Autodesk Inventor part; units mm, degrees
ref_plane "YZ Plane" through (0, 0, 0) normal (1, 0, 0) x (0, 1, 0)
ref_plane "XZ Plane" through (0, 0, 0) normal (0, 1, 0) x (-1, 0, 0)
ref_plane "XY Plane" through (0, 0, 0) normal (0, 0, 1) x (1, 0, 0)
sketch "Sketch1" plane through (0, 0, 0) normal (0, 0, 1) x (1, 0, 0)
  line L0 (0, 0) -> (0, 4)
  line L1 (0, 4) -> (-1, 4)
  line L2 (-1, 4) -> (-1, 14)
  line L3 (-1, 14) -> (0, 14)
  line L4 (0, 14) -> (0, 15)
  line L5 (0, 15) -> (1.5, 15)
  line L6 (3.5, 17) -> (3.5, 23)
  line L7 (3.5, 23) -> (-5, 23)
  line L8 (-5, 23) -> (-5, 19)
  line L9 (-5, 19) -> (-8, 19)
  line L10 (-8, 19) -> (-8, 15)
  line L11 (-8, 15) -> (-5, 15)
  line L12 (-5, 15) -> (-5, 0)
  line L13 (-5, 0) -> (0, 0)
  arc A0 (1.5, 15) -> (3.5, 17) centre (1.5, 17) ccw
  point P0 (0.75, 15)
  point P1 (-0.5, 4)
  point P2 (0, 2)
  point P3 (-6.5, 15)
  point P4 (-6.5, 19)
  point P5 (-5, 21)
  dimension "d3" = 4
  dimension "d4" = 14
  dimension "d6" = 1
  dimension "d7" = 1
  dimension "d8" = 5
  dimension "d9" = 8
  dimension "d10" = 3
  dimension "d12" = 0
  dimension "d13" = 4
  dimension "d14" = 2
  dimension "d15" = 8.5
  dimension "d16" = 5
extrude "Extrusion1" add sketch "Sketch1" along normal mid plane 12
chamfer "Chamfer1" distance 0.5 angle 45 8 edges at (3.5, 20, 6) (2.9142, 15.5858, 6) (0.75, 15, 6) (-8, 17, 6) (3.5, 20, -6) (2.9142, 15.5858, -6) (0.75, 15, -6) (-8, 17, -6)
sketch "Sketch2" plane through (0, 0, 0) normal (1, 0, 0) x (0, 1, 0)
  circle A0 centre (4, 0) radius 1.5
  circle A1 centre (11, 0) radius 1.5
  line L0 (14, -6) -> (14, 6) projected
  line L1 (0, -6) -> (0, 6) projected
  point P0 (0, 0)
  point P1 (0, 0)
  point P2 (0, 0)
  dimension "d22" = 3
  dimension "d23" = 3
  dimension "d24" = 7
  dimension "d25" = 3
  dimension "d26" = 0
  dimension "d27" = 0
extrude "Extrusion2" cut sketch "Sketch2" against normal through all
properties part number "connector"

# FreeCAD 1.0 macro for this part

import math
import FreeCAD as App
import Part
import Sketcher
Q = App.Units.Quantity


def edges_at(feature, points):
    """Names of the edges that pass closest to the given points."""
    edges = feature.Shape.Edges
    near = lambda p: min(range(len(edges)), key=lambda i: edges[i].distToShape(Part.Vertex(*p))[0])
    return sorted({f"Edge{near(p) + 1}" for p in points})

doc = App.newDocument("Part")
body = doc.addObject("PartDesign::Body", "Body")

# Sketch on XY plane
sketch1 = doc.addObject("Sketcher::SketchObject", "Sketch")
body.addObject(sketch1)
sketch1.AttachmentSupport = (doc.XY_Plane, [""])
sketch1.MapMode = "FlatFace"
sketch1.addGeometry([
    Part.LineSegment(App.Vector(-5, 0, 0), App.Vector(0, 0, 0)),  # 0
    Part.LineSegment(App.Vector(0, 0, 0), App.Vector(0, 4, 0)),  # 1
    Part.LineSegment(App.Vector(0, 4, 0), App.Vector(-1, 4, 0)),  # 2
    Part.LineSegment(App.Vector(-1, 4, 0), App.Vector(-1, 14, 0)),  # 3
    Part.LineSegment(App.Vector(-1, 14, 0), App.Vector(0, 14, 0)),  # 4
    Part.LineSegment(App.Vector(0, 14, 0), App.Vector(0, 15, 0)),  # 5
    Part.LineSegment(App.Vector(0, 15, 0), App.Vector(1.5, 15, 0)),  # 6
    Part.ArcOfCircle(Part.Circle(App.Vector(1.5, 17, 0), App.Vector(0, 0, 1), 2), math.radians(-90), math.radians(0)),  # 7
    Part.LineSegment(App.Vector(3.5, 17, 0), App.Vector(3.5, 23, 0)),  # 8
    Part.LineSegment(App.Vector(3.5, 23, 0), App.Vector(-5, 23, 0)),  # 9
    Part.LineSegment(App.Vector(-5, 23, 0), App.Vector(-5, 19, 0)),  # 10
    Part.LineSegment(App.Vector(-5, 19, 0), App.Vector(-8, 19, 0)),  # 11
    Part.LineSegment(App.Vector(-8, 19, 0), App.Vector(-8, 15, 0)),  # 12
    Part.LineSegment(App.Vector(-8, 15, 0), App.Vector(-5, 15, 0)),  # 13
    Part.LineSegment(App.Vector(-5, 15, 0), App.Vector(-5, 0, 0)),  # 14
], False)
sketch1.addConstraint([
    Sketcher.Constraint("Coincident", 0, 2, 1, 1),
    Sketcher.Constraint("Coincident", 1, 2, 2, 1),
    Sketcher.Constraint("Coincident", 2, 2, 3, 1),
    Sketcher.Constraint("Coincident", 3, 2, 4, 1),
    Sketcher.Constraint("Coincident", 4, 2, 5, 1),
    Sketcher.Constraint("Coincident", 5, 2, 6, 1),
    Sketcher.Constraint("Tangent", 6, 2, 7, 1),
    Sketcher.Constraint("Tangent", 7, 2, 8, 1),
    Sketcher.Constraint("Coincident", 8, 2, 9, 1),
    Sketcher.Constraint("Coincident", 9, 2, 10, 1),
    Sketcher.Constraint("Coincident", 10, 2, 11, 1),
    Sketcher.Constraint("Coincident", 11, 2, 12, 1),
    Sketcher.Constraint("Coincident", 12, 2, 13, 1),
    Sketcher.Constraint("Coincident", 13, 2, 14, 1),
    Sketcher.Constraint("Coincident", 14, 2, 0, 1),
    Sketcher.Constraint("Horizontal", 0),
    Sketcher.Constraint("Vertical", 1),
    Sketcher.Constraint("Horizontal", 2),
    Sketcher.Constraint("Vertical", 3),
    Sketcher.Constraint("Horizontal", 4),
    Sketcher.Constraint("Vertical", 5),
    Sketcher.Constraint("Horizontal", 6),
    Sketcher.Constraint("Vertical", 8),
    Sketcher.Constraint("Horizontal", 9),
    Sketcher.Constraint("Vertical", 10),
    Sketcher.Constraint("Horizontal", 11),
    Sketcher.Constraint("Vertical", 12),
    Sketcher.Constraint("Horizontal", 13),
    Sketcher.Constraint("Vertical", 14),
    Sketcher.Constraint("Coincident", 0, 2, -1, 1),
    Sketcher.Constraint("PointOnObject", 4, 2, -2),
    Sketcher.Constraint("Horizontal", 6, 2, 12, 2),
    Sketcher.Constraint("Vertical", 10, 2, 13, 2),
    Sketcher.Constraint("Equal", 4, 5),
    Sketcher.Constraint("Equal", 1, 10),
    Sketcher.Constraint("Equal", 10, 12),
    Sketcher.Constraint("Radius", 7, Q("2 mm")),
    Sketcher.Constraint("DistanceX", 0, 1, 0, 2, Q("5 mm")),
    Sketcher.Constraint("DistanceX", 2, 2, 2, 1, Q("1 mm")),
    Sketcher.Constraint("DistanceX", 11, 2, 11, 1, Q("3 mm")),
    Sketcher.Constraint("DistanceY", 1, 1, 1, 2, Q("4 mm")),
    Sketcher.Constraint("DistanceX", 9, 2, 9, 1, Q("8.5 mm")),
    Sketcher.Constraint("DistanceY", -1, 1, 3, 2, Q("14 mm")),
])
pad1 = doc.addObject("PartDesign::Pad", "Pad")
body.addObject(pad1)
pad1.Profile = sketch1
pad1.Length = 12
pad1.Midplane = True
doc.recompute()

chamfer = doc.addObject("PartDesign::Chamfer", "Chamfer")
body.addObject(chamfer)
chamfer.Base = (pad1, edges_at(pad1, [
    (3.5, 20, 6),
    (2.914, 15.586, 6),
    (0.75, 15, 6),
    (-8, 17, 6),
    (3.5, 20, -6),
    (2.914, 15.586, -6),
    (0.75, 15, -6),
    (-8, 17, -6),
]))
chamfer.Size = 0.5

# Sketch on YZ plane
sketch2 = doc.addObject("Sketcher::SketchObject", "Sketch001")
body.addObject(sketch2)
sketch2.AttachmentSupport = (doc.YZ_Plane, [""])
sketch2.MapMode = "FlatFace"
sketch2.addGeometry([
    Part.Circle(App.Vector(4, 0, 0), App.Vector(0, 0, 1), 1.5),
    Part.Circle(App.Vector(11, 0, 0), App.Vector(0, 0, 1), 1.5),
], False)
sketch2.addConstraint([
    Sketcher.Constraint("Equal", 0, 1),
    Sketcher.Constraint("PointOnObject", 0, 3, -1),
    Sketcher.Constraint("PointOnObject", 1, 3, -1),
    Sketcher.Constraint("Diameter", 0, Q("3 mm")),
    Sketcher.Constraint("DistanceX", 0, 3, 1, 3, Q("7 mm")),
    Sketcher.Constraint("DistanceX", -1, 1, 0, 3, Q("4 mm")),
])
pocket1 = doc.addObject("PartDesign::Pocket", "Pocket")
body.addObject(pocket1)
pocket1.Profile = sketch2
pocket1.Type = "ThroughAll"

doc.recompute()
